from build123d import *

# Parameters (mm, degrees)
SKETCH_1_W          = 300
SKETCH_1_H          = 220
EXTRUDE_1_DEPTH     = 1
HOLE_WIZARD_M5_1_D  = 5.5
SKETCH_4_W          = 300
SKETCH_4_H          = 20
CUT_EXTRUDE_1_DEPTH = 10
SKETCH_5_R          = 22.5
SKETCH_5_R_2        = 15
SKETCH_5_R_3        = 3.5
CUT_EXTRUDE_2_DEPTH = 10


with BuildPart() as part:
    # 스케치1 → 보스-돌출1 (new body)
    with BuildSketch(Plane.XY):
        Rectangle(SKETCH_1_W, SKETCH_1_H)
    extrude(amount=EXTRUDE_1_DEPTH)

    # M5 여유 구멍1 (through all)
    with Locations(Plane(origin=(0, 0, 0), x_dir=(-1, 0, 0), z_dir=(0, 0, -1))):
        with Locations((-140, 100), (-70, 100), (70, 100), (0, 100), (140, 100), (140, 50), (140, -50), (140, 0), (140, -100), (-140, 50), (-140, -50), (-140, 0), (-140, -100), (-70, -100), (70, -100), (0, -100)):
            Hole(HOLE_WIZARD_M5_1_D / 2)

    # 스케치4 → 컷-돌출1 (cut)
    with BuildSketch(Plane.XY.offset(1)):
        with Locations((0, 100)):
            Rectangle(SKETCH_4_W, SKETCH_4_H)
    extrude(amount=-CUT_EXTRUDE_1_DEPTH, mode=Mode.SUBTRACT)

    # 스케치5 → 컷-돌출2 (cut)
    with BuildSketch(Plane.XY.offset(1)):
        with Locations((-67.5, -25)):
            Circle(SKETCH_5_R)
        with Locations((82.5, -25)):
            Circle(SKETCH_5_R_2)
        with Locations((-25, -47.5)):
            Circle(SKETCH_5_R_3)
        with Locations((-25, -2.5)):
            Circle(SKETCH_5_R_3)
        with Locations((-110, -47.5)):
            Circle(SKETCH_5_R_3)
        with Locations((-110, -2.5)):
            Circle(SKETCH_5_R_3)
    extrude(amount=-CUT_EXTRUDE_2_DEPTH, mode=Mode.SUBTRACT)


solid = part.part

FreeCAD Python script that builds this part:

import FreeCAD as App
import Part
import Sketcher
Q = App.Units.Quantity

doc = App.newDocument("Part")
params = doc.addObject("Spreadsheet::Sheet", "Params")
for row, (alias, value) in enumerate([
    ("sketch1_width", "300 mm"),
    ("sketch1_height", "220 mm"),
    ("pad1_length", "1 mm"),
    ("sketch2_diameter", "5.5 mm"),
    ("hole_diameter", "5.5 mm"),
    ("sketch3_width", "300 mm"),
    ("sketch3_height", "20 mm"),
    ("pocket1_length", "10 mm"),
    ("sketch4_diameter", "45 mm"),
    ("sketch4_diameter2", "30 mm"),
    ("sketch4_diameter3", "7 mm"),
    ("pocket2_length", "10 mm"),
], start=1):
    params.set(f"A{row}", alias)
    params.set(f"B{row}", "=" + value)
    params.setAlias(f"B{row}", alias)

body = doc.addObject("PartDesign::Body", "Body")

sketch1 = doc.addObject("Sketcher::SketchObject", "Sketch")
body.addObject(sketch1)
sketch1.AttachmentSupport = (doc.XY_Plane, [""])
sketch1.MapMode = "FlatFace"
sketch1.addGeometry([
    Part.LineSegment(App.Vector(-150, 110, 0), App.Vector(-150, -110, 0)),
    Part.LineSegment(App.Vector(-150, -110, 0), App.Vector(150, -110, 0)),
    Part.LineSegment(App.Vector(150, -110, 0), App.Vector(150, 110, 0)),
    Part.LineSegment(App.Vector(150, 110, 0), App.Vector(-150, 110, 0)),
], False)
sketch1.addConstraint([
    Sketcher.Constraint("Coincident", 0, 2, 1, 1),
    Sketcher.Constraint("Coincident", 1, 2, 2, 1),
    Sketcher.Constraint("Coincident", 2, 2, 3, 1),
    Sketcher.Constraint("Coincident", 3, 2, 0, 1),
    Sketcher.Constraint("Vertical", 0),
    Sketcher.Constraint("Horizontal", 1),
    Sketcher.Constraint("Vertical", 2),
    Sketcher.Constraint("Horizontal", 3),
    Sketcher.Constraint("Symmetric", 0, 2, 2, 2, -1, 1),
    Sketcher.Constraint("DistanceX", 1, 1, 1, 2, Q("300 mm")),
    Sketcher.Constraint("DistanceY", 0, 2, 0, 1, Q("220 mm")),
])
sketch1.setExpression("Constraints[9]", "Params.sketch1_width")
sketch1.setExpression("Constraints[10]", "Params.sketch1_height")
pad1 = doc.addObject("PartDesign::Pad", "Pad")
body.addObject(pad1)
pad1.Profile = sketch1
pad1.setExpression("Length", "Params.pad1_length")

sketch2 = doc.addObject("Sketcher::SketchObject", "Sketch001")
body.addObject(sketch2)
sketch2.AttachmentSupport = (doc.XY_Plane, [""])
sketch2.MapMode = "FlatFace"
sketch2.addGeometry([
    Part.Circle(App.Vector(140, 100, 0), App.Vector(0, 0, 1), 2.75),
    Part.Circle(App.Vector(70, 100, 0), App.Vector(0, 0, 1), 2.75),
    Part.Circle(App.Vector(-70, 100, 0), App.Vector(0, 0, 1), 2.75),
    Part.Circle(App.Vector(0, 100, 0), App.Vector(0, 0, 1), 2.75),
    Part.Circle(App.Vector(-140, 100, 0), App.Vector(0, 0, 1), 2.75),
    Part.Circle(App.Vector(-140, 50, 0), App.Vector(0, 0, 1), 2.75),
    Part.Circle(App.Vector(-140, -50, 0), App.Vector(0, 0, 1), 2.75),
    Part.Circle(App.Vector(-140, 0, 0), App.Vector(0, 0, 1), 2.75),
    Part.Circle(App.Vector(-140, -100, 0), App.Vector(0, 0, 1), 2.75),
    Part.Circle(App.Vector(140, 50, 0), App.Vector(0, 0, 1), 2.75),
    Part.Circle(App.Vector(140, -50, 0), App.Vector(0, 0, 1), 2.75),
    Part.Circle(App.Vector(140, 0, 0), App.Vector(0, 0, 1), 2.75),
    Part.Circle(App.Vector(140, -100, 0), App.Vector(0, 0, 1), 2.75),
    Part.Circle(App.Vector(70, -100, 0), App.Vector(0, 0, 1), 2.75),
    Part.Circle(App.Vector(-70, -100, 0), App.Vector(0, 0, 1), 2.75),
    Part.Circle(App.Vector(0, -100, 0), App.Vector(0, 0, 1), 2.75),
], False)
sketch2.addConstraint([
    Sketcher.Constraint("Equal", 0, 1),
    Sketcher.Constraint("Equal", 1, 2),
    Sketcher.Constraint("Equal", 2, 3),
    Sketcher.Constraint("Equal", 3, 4),
    Sketcher.Constraint("Equal", 4, 5),
    Sketcher.Constraint("Equal", 5, 6),
    Sketcher.Constraint("Equal", 6, 7),
    Sketcher.Constraint("Equal", 7, 8),
    Sketcher.Constraint("Equal", 8, 9),
    Sketcher.Constraint("Equal", 9, 10),
    Sketcher.Constraint("Equal", 10, 11),
    Sketcher.Constraint("Equal", 11, 12),
    Sketcher.Constraint("Equal", 12, 13),
    Sketcher.Constraint("Equal", 13, 14),
    Sketcher.Constraint("Equal", 14, 15),
    Sketcher.Constraint("Symmetric", 0, 3, 8, 3, -1, 1),
    Sketcher.Constraint("Symmetric", 6, 3, 9, 3, -1, 1),
    Sketcher.Constraint("Symmetric", 5, 3, 10, 3, -1, 1),
    Sketcher.Constraint("Symmetric", 7, 3, 11, 3, -1, 1),
    Sketcher.Constraint("Symmetric", 4, 3, 12, 3, -1, 1),
    Sketcher.Constraint("Symmetric", 2, 3, 13, 3, -1, 1),
    Sketcher.Constraint("Symmetric", 1, 3, 14, 3, -1, 1),
    Sketcher.Constraint("Symmetric", 3, 3, 15, 3, -1, 1),
    Sketcher.Constraint("Symmetric", 1, 3, 2, 3, -2),
    Sketcher.Constraint("Symmetric", 0, 3, 4, 3, -2),
    Sketcher.Constraint("Symmetric", 5, 3, 9, 3, -2),
    Sketcher.Constraint("PointOnObject", 3, 3, -2),
    Sketcher.Constraint("PointOnObject", 7, 3, -1),
    Sketcher.Constraint("Horizontal", 0, 3, 1, 3),
    Sketcher.Constraint("Horizontal", 2, 3, 3, 3),
    Sketcher.Constraint("Vertical", 4, 3, 5, 3),
    Sketcher.Constraint("Vertical", 6, 3, 7, 3),
    Sketcher.Constraint("Diameter", 0, Q("5.5 mm")),
    Sketcher.Constraint("DistanceX", -1, 1, 0, 3, Q("140 mm")),
    Sketcher.Constraint("DistanceY", -1, 1, 0, 3, Q("100 mm")),
    Sketcher.Constraint("DistanceX", -1, 1, 1, 3, Q("70 mm")),
    Sketcher.Constraint("DistanceY", -1, 1, 5, 3, Q("50 mm")),
])
sketch2.setExpression("Constraints[32]", "Params.sketch2_diameter")
doc.recompute()
hole = doc.addObject("PartDesign::Hole", "Hole")
body.addObject(hole)
hole.Profile = sketch2
hole.ThreadType = "None"
hole.setExpression("Diameter", "Params.hole_diameter")
hole.DepthType = "ThroughAll"
hole.Reversed = True

sketch3 = doc.addObject("Sketcher::SketchObject", "Sketch002")
body.addObject(sketch3)
sketch3.AttachmentSupport = (doc.XY_Plane, [""])
sketch3.MapMode = "FlatFace"
sketch3.AttachmentOffset = App.Placement(App.Vector(0, 0, 1), App.Rotation())
sketch3.addGeometry([
    Part.LineSegment(App.Vector(-150, 110, 0), App.Vector(-150, 90, 0)),
    Part.LineSegment(App.Vector(-150, 90, 0), App.Vector(150, 90, 0)),
    Part.LineSegment(App.Vector(150, 90, 0), App.Vector(150, 110, 0)),
    Part.LineSegment(App.Vector(150, 110, 0), App.Vector(-150, 110, 0)),
], False)
sketch3.addConstraint([
    Sketcher.Constraint("Coincident", 0, 2, 1, 1),
    Sketcher.Constraint("Coincident", 1, 2, 2, 1),
    Sketcher.Constraint("Coincident", 2, 2, 3, 1),
    Sketcher.Constraint("Coincident", 3, 2, 0, 1),
    Sketcher.Constraint("Vertical", 0),
    Sketcher.Constraint("Horizontal", 1),
    Sketcher.Constraint("Vertical", 2),
    Sketcher.Constraint("Horizontal", 3),
    Sketcher.Constraint("DistanceX", 1, 1, 1, 2, Q("300 mm")),
    Sketcher.Constraint("DistanceY", 0, 2, 0, 1, Q("20 mm")),
    Sketcher.Constraint("DistanceX", 0, 2, -1, 1, Q("150 mm")),
    Sketcher.Constraint("DistanceY", -1, 1, 0, 2, Q("90 mm")),
])
sketch3.setExpression("Constraints[8]", "Params.sketch3_width")
sketch3.setExpression("Constraints[9]", "Params.sketch3_height")
pocket1 = doc.addObject("PartDesign::Pocket", "Pocket")
body.addObject(pocket1)
pocket1.Profile = sketch3
pocket1.setExpression("Length", "Params.pocket1_length")

sketch4 = doc.addObject("Sketcher::SketchObject", "Sketch003")
body.addObject(sketch4)
sketch4.AttachmentSupport = (doc.XY_Plane, [""])
sketch4.MapMode = "FlatFace"
sketch4.AttachmentOffset = App.Placement(App.Vector(0, 0, 1), App.Rotation())
sketch4.addGeometry([
    Part.Circle(App.Vector(-67.5, -25, 0), App.Vector(0, 0, 1), 22.5),
    Part.Circle(App.Vector(82.5, -25, 0), App.Vector(0, 0, 1), 15),
    Part.Circle(App.Vector(-25, -47.5, 0), App.Vector(0, 0, 1), 3.5),
    Part.Circle(App.Vector(-25, -2.5, 0), App.Vector(0, 0, 1), 3.5),
    Part.Circle(App.Vector(-110, -47.5, 0), App.Vector(0, 0, 1), 3.5),
    Part.Circle(App.Vector(-110, -2.5, 0), App.Vector(0, 0, 1), 3.5),
], False)
sketch4.addConstraint([
    Sketcher.Constraint("Equal", 2, 3),
    Sketcher.Constraint("Equal", 3, 4),
    Sketcher.Constraint("Equal", 4, 5),
    Sketcher.Constraint("Horizontal", 0, 3, 1, 3),
    Sketcher.Constraint("Horizontal", 2, 3, 4, 3),
    Sketcher.Constraint("Horizontal", 3, 3, 5, 3),
    Sketcher.Constraint("Vertical", 2, 3, 3, 3),
    Sketcher.Constraint("Vertical", 4, 3, 5, 3),
    Sketcher.Constraint("Diameter", 0, Q("45 mm")),
    Sketcher.Constraint("Diameter", 1, Q("30 mm")),
    Sketcher.Constraint("Diameter", 2, Q("7 mm")),
    Sketcher.Constraint("DistanceY", 0, 3, -1, 1, Q("25 mm")),
    Sketcher.Constraint("DistanceX", 2, 3, -1, 1, Q("25 mm")),
    Sketcher.Constraint("DistanceX", 4, 3, -1, 1, Q("110 mm")),
    Sketcher.Constraint("DistanceX", 0, 3, 1, 3, Q("150 mm")),
    Sketcher.Constraint("DistanceY", 2, 3, 3, 3, Q("45 mm")),
    Sketcher.Constraint("DistanceX", 0, 3, -1, 1, Q("67.5 mm")),
    Sketcher.Constraint("DistanceY", 2, 3, -1, 1, Q("47.5 mm")),
])
sketch4.setExpression("Constraints[8]", "Params.sketch4_diameter")
sketch4.setExpression("Constraints[9]", "Params.sketch4_diameter2")
sketch4.setExpression("Constraints[10]", "Params.sketch4_diameter3")
pocket2 = doc.addObject("PartDesign::Pocket", "Pocket001")
body.addObject(pocket2)
pocket2.Profile = sketch4
pocket2.setExpression("Length", "Params.pocket2_length")

doc.recompute()
